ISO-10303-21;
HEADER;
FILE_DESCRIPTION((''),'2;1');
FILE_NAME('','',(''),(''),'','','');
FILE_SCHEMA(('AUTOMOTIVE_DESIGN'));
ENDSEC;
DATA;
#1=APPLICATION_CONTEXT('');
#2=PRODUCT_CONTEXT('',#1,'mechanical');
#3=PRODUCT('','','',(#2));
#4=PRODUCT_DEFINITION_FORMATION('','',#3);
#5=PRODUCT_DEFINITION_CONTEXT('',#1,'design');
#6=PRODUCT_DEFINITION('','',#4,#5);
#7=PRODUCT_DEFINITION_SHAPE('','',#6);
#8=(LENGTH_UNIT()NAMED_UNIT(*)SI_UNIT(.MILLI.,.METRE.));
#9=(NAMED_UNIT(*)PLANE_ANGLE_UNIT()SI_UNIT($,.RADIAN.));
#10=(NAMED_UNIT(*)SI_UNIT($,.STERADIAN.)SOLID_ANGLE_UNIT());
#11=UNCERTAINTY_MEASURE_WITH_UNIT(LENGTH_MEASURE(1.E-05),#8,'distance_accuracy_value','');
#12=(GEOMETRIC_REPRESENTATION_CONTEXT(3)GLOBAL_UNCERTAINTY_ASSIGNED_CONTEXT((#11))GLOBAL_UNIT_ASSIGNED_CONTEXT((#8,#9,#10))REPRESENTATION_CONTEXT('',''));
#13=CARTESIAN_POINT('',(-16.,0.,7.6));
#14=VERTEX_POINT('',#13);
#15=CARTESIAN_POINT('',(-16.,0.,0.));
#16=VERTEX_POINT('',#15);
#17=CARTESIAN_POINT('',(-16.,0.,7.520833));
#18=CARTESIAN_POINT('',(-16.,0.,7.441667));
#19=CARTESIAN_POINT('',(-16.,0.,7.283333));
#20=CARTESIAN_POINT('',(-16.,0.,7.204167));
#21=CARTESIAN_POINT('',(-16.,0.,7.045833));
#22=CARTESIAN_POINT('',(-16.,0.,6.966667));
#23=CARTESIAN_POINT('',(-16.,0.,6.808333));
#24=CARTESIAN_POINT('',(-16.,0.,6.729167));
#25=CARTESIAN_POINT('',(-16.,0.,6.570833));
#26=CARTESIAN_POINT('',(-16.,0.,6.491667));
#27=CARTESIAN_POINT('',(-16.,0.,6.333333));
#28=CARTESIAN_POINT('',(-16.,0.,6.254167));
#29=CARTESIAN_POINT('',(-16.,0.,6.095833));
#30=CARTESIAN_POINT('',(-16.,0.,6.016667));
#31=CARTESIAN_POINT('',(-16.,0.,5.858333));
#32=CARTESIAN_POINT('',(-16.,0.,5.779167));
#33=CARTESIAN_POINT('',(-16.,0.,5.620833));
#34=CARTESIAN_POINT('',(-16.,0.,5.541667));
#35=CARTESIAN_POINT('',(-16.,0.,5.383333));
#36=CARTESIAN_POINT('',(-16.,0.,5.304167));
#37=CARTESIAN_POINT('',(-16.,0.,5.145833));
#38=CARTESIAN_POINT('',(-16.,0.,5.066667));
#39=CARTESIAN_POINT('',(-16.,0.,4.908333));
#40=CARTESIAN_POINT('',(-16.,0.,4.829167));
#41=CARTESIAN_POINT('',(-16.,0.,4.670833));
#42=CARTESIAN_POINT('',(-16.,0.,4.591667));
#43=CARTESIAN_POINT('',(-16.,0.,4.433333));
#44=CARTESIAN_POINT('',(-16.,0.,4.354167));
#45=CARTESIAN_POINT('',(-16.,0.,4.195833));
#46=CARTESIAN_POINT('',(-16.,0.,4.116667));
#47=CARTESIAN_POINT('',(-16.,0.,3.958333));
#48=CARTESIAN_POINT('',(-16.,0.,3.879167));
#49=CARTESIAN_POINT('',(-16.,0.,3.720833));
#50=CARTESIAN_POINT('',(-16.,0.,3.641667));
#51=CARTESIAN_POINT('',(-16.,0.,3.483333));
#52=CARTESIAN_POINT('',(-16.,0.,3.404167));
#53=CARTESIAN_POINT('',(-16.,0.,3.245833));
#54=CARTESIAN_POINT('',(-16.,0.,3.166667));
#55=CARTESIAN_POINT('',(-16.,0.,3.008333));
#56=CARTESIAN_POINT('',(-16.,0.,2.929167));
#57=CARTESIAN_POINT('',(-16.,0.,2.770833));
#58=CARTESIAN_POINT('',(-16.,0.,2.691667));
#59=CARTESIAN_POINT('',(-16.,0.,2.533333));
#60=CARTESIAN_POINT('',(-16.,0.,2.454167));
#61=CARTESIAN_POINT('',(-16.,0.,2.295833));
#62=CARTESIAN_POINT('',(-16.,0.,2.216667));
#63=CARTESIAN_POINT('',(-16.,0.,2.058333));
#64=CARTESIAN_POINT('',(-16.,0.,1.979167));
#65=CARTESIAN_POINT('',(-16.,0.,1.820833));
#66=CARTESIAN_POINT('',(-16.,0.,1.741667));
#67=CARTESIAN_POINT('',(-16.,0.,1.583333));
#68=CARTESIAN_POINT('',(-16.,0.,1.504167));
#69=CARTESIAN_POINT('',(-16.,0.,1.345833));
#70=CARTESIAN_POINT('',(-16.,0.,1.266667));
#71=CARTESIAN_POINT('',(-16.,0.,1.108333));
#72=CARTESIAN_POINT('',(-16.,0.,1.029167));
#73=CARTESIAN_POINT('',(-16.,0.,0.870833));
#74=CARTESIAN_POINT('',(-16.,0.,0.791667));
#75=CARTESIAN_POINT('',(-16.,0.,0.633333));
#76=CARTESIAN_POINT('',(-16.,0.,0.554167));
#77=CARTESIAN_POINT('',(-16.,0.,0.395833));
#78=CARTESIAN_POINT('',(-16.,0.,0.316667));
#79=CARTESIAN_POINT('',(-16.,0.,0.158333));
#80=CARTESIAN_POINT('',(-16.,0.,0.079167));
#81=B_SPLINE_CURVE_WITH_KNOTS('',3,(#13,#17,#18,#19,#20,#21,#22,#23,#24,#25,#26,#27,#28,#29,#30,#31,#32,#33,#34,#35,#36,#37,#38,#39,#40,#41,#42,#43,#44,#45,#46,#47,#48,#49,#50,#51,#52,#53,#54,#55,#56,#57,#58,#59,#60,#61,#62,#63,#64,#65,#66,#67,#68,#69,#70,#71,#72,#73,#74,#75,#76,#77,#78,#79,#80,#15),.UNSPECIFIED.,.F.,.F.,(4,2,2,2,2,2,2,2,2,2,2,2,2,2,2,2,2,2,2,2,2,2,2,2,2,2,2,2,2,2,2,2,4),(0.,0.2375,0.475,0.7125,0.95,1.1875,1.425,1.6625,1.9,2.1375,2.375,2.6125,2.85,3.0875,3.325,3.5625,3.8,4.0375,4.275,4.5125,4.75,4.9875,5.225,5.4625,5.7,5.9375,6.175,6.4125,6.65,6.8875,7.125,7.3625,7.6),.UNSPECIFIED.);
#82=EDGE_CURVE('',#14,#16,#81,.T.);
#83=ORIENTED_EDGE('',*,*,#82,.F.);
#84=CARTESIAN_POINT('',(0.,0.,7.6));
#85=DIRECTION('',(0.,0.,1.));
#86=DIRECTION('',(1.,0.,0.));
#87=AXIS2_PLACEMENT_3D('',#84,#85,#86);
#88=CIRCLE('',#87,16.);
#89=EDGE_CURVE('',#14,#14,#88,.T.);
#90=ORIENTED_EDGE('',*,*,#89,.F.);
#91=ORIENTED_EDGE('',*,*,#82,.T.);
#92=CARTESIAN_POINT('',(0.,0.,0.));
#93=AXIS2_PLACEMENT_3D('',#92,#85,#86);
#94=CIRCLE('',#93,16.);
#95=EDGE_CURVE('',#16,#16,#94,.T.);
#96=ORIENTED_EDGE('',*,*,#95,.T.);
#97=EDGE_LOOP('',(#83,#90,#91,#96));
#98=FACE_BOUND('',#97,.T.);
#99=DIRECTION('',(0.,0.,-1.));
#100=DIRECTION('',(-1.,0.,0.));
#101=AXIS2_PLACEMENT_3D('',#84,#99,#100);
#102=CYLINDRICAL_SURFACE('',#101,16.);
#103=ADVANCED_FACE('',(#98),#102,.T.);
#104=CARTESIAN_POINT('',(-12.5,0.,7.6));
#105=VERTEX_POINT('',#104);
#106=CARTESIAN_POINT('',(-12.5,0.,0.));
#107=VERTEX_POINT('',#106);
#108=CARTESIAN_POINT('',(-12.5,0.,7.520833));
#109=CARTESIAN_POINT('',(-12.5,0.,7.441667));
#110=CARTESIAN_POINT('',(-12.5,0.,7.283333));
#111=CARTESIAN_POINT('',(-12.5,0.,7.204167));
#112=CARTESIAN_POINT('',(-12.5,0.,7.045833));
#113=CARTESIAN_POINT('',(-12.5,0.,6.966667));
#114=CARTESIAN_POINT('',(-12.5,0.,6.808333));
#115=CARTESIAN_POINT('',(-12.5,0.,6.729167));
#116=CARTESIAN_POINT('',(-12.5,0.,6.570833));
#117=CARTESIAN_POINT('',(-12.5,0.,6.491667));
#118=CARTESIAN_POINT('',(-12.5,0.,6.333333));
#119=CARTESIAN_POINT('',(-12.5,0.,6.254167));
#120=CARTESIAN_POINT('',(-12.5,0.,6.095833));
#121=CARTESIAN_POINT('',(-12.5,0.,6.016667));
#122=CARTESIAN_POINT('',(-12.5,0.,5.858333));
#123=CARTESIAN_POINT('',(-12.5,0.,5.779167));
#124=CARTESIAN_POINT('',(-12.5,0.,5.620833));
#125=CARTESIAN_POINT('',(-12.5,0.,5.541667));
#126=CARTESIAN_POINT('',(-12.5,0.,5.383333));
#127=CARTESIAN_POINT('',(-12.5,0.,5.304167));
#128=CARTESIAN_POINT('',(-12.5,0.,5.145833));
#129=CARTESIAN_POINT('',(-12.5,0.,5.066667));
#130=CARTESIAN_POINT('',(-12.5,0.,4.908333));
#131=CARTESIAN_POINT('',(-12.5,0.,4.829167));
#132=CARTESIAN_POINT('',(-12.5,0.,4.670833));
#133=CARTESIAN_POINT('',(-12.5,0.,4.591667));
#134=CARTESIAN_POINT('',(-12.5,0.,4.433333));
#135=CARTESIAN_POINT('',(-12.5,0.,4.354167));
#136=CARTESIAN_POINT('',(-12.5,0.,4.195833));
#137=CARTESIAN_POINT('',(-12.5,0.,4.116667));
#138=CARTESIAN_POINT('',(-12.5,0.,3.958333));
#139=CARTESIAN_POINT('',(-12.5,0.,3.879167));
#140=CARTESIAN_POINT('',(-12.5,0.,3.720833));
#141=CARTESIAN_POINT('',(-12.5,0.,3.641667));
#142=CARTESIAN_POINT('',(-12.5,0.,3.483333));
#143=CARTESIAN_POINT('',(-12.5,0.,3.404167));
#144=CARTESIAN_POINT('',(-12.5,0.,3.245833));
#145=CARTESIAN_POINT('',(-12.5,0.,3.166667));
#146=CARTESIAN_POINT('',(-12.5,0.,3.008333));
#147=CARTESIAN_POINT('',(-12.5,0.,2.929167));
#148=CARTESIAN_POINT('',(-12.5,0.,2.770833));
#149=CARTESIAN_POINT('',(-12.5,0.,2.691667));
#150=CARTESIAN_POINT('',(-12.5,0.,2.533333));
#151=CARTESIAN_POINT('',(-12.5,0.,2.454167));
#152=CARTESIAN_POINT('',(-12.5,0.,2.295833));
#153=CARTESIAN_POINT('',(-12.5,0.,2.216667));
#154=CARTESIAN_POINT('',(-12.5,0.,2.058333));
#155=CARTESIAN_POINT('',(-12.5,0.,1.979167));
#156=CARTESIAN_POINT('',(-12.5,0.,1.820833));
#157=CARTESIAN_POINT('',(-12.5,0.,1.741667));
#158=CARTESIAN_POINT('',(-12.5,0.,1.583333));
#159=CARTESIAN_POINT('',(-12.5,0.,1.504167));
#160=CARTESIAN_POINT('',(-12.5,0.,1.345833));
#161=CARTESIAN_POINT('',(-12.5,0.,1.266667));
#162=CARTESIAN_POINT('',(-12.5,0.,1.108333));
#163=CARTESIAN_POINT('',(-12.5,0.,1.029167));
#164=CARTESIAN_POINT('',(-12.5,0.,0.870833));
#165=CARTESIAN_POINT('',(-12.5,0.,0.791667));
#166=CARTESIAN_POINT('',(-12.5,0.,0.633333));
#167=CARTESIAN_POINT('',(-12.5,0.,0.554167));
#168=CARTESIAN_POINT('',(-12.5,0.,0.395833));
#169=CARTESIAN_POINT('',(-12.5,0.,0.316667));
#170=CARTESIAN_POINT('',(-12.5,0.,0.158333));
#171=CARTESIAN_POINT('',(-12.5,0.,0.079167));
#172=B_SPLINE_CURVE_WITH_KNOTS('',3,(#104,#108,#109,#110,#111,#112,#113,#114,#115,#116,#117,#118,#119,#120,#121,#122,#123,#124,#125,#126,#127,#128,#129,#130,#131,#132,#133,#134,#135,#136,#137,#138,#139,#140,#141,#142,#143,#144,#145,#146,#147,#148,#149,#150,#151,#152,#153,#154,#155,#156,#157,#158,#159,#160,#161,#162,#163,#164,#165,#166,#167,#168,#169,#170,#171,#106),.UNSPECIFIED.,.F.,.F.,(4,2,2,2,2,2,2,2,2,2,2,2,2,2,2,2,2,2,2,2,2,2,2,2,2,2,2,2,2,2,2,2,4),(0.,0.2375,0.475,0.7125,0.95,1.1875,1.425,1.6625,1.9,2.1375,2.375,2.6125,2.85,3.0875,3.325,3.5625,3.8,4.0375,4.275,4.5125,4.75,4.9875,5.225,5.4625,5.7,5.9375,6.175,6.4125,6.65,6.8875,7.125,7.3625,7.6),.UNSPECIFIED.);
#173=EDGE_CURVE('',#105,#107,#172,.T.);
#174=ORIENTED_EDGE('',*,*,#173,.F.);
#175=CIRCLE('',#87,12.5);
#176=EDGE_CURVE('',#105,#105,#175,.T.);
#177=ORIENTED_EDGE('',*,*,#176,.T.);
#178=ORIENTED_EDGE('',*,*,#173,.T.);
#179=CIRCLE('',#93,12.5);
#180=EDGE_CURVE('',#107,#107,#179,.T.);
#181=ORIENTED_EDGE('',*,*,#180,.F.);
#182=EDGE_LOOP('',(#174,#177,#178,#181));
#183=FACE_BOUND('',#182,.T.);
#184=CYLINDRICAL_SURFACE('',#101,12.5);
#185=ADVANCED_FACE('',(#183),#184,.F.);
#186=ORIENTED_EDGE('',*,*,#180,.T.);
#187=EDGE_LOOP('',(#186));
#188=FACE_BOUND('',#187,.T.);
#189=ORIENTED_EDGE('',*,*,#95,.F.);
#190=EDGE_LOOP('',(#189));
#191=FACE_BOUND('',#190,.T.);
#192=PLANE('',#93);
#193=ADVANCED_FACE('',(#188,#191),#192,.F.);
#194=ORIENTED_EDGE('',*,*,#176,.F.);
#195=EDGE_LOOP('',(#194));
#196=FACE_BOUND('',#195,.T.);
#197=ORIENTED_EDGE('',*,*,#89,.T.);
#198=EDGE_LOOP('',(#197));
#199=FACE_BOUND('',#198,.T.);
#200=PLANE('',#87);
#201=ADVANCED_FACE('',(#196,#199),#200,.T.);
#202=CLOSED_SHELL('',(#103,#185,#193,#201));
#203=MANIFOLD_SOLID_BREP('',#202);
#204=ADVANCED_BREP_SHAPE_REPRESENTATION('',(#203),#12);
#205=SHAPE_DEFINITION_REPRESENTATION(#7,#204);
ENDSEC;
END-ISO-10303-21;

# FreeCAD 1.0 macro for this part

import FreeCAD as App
import Part
import Sketcher
from FreeCAD import Vector
Q = App.Units.Quantity

doc = App.newDocument("Part")
params = doc.addObject("Spreadsheet::Sheet", "Params")
for row, (alias, value) in enumerate([
    ("sketch1_diameter", "32 mm"),
    ("sketch1_diameter2", "25 mm"),
    ("pad1_length", "7.6 mm"),
], start=1):
    params.set(f"A{row}", alias)
    params.set(f"B{row}", "=" + value)
    params.setAlias(f"B{row}", alias)

body = doc.addObject("PartDesign::Body", "Body")

sketch1 = body.newObject("Sketcher::SketchObject", "Sketch")
sketch1.AttachmentSupport = (doc.getObject("XY_Plane"), [""])
sketch1.MapMode = "FlatFace"
sketch1.addGeometry([
    Part.Circle(Vector(0, 0, 0), Vector(0, 0, 1), 16),
    Part.Circle(Vector(0, 0, 0), Vector(0, 0, 1), 12),
], False)
sketch1.addConstraint([
    Sketcher.Constraint("Coincident", 0, 3, -1, 1),
    Sketcher.Constraint("Coincident", 1, 3, -1, 1),
    Sketcher.Constraint("Diameter", 0, Q("32 mm")),
    Sketcher.Constraint("Diameter", 1, Q("25 mm")),
])
sketch1.setExpression("Constraints[2]", "Params.sketch1_diameter")
sketch1.setExpression("Constraints[3]", "Params.sketch1_diameter2")
pad1 = body.newObject("PartDesign::Pad", "Pad")
pad1.Profile = sketch1
pad1.setExpression("Length", "Params.pad1_length")

doc.recompute()
